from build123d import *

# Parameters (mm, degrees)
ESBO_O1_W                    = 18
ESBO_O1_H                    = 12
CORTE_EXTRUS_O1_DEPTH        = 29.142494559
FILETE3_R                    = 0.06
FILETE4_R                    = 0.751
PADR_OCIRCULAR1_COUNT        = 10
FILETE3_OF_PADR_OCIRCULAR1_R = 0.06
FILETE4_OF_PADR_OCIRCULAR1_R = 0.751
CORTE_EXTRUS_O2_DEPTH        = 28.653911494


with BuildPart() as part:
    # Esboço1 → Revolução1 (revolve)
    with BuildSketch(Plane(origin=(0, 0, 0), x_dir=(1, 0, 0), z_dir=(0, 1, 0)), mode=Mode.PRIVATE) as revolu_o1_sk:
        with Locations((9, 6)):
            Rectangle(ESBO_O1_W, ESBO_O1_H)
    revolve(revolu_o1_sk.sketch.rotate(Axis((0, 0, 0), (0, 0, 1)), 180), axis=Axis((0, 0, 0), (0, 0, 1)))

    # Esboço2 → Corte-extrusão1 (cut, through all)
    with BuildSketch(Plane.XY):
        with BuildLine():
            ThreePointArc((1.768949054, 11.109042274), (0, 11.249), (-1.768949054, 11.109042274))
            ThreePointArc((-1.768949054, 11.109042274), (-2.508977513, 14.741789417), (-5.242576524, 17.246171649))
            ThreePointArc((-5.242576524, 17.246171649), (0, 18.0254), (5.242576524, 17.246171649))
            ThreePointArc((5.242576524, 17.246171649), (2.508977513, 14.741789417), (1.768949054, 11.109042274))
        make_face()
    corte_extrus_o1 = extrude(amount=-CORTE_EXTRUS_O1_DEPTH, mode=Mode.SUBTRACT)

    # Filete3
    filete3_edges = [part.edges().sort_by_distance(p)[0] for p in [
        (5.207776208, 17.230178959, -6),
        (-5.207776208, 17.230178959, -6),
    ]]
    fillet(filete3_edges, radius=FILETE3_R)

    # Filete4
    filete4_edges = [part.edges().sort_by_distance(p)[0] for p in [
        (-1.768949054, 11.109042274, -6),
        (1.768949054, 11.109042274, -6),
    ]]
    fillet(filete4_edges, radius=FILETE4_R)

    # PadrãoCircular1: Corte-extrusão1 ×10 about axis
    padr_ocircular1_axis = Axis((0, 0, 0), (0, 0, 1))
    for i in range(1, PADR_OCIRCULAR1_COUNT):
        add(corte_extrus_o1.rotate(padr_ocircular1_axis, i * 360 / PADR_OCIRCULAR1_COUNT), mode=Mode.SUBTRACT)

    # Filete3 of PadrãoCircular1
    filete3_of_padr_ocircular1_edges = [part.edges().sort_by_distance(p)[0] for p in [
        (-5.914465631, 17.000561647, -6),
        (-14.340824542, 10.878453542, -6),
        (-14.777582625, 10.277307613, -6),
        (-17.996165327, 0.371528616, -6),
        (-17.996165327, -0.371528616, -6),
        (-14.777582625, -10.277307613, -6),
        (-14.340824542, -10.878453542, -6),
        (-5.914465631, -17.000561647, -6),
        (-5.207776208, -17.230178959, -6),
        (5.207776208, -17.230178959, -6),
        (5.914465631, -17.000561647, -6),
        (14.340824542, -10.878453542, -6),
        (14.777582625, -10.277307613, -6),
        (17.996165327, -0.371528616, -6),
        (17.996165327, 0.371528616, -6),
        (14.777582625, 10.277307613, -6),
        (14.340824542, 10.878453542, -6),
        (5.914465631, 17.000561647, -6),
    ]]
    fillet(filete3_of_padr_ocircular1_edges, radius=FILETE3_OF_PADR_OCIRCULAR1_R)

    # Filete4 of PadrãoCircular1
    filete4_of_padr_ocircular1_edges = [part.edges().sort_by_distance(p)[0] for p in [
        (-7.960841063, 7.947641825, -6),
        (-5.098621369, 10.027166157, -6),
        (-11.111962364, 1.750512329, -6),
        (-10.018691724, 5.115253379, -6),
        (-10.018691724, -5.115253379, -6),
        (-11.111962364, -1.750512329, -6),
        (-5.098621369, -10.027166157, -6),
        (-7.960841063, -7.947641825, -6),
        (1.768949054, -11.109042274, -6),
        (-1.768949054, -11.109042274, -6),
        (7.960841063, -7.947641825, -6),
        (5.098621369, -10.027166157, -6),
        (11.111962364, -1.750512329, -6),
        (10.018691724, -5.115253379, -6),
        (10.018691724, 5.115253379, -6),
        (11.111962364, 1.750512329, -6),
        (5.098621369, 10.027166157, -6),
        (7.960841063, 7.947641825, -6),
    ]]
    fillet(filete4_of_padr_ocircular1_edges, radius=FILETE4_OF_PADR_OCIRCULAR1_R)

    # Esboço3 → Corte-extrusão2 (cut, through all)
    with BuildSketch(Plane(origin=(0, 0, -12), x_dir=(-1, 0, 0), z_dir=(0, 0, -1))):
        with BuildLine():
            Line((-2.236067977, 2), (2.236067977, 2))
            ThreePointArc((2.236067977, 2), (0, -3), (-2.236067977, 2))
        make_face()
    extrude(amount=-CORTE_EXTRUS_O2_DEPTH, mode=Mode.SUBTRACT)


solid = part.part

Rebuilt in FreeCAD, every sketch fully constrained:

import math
import FreeCAD as App
import Part
import Sketcher


def edges_at(feature, points):
    """Names of the edges that pass closest to the given points."""
    edges = feature.Shape.Edges
    near = lambda p: min(range(len(edges)), key=lambda i: edges[i].distToShape(Part.Vertex(*p))[0])
    return sorted({f"Edge{near(p) + 1}" for p in points})

doc = App.newDocument("Part")
body = doc.addObject("PartDesign::Body", "Body")

# Sketch on XZ plane
sketch1 = body.newObject("Sketcher::SketchObject", "Sketch")
sketch1.AttachmentSupport = (doc.getObject("XZ_Plane"), [""])
sketch1.MapMode = "FlatFace"
sketch1.addGeometry([
    Part.LineSegment(App.Vector(0, -12, 0), App.Vector(0, 0, 0)),
    Part.LineSegment(App.Vector(0, 0, 0), App.Vector(18, 0, 0)),
    Part.LineSegment(App.Vector(18, 0, 0), App.Vector(18, -12, 0)),
    Part.LineSegment(App.Vector(18, -12, 0), App.Vector(0, -12, 0)),
], False)
sketch1.addConstraint([
    Sketcher.Constraint("Coincident", 0, 2, 1, 1),
    Sketcher.Constraint("Coincident", 1, 2, 2, 1),
    Sketcher.Constraint("Coincident", 2, 2, 3, 1),
    Sketcher.Constraint("Coincident", 3, 2, 0, 1),
    Sketcher.Constraint("Vertical", 0),
    Sketcher.Constraint("Horizontal", 1),
    Sketcher.Constraint("Vertical", 2),
    Sketcher.Constraint("Horizontal", 3),
    Sketcher.Constraint("Coincident", 0, 2, -1, 1),
    Sketcher.Constraint("DistanceX", 1, 1, 1, 2, 18.0),
    Sketcher.Constraint("DistanceY", 0, 1, 0, 2, 12.0),
])
revolution = body.newObject("PartDesign::Revolution", "Revolution")
revolution.Profile = sketch1
revolution.ReferenceAxis = (sketch1, ["V_Axis"])
revolution.Angle = 360

# Sketch on XY plane
sketch2 = body.newObject("Sketcher::SketchObject", "Sketch001")
sketch2.AttachmentSupport = (doc.getObject("XY_Plane"), [""])
sketch2.MapMode = "FlatFace"
sketch2.addGeometry([
    Part.ArcOfCircle(Part.Circle(App.Vector(0, 0, 0), App.Vector(0, 0, 1), 11.2), math.radians(80.95), math.radians(99.05)),
    Part.ArcOfCircle(Part.Circle(App.Vector(7.7, 11.8, 0), App.Vector(0, 0, 1), 6), math.radians(114), math.radians(186)),
    Part.ArcOfCircle(Part.Circle(App.Vector(0, 0, 0), App.Vector(0, 0, 1), 18), math.radians(73), math.radians(107)),
    Part.ArcOfCircle(Part.Circle(App.Vector(-7.7, 11.8, 0), App.Vector(0, 0, 1), 6), math.radians(-6), math.radians(66)),
], False)
sketch2.addConstraint([
    Sketcher.Constraint("Coincident", 0, 1, 1, 2),
    Sketcher.Constraint("Coincident", 1, 1, 2, 1),
    Sketcher.Constraint("Coincident", 2, 2, 3, 2),
    Sketcher.Constraint("Coincident", 3, 1, 0, 2),
    Sketcher.Constraint("Coincident", 0, 3, -1, 1),
    Sketcher.Constraint("Coincident", 2, 3, -1, 1),
    Sketcher.Constraint("Equal", 1, 3),
    Sketcher.Constraint("Symmetric", 1, 3, 3, 3, -2),
    Sketcher.Constraint("Radius", 1, 6.0),
    Sketcher.Constraint("Radius", 0, 11.249),
    Sketcher.Constraint("Radius", 2, 18.0254),
    Sketcher.Constraint("DistanceX", -1, 1, 1, 3, 7.730599),
    Sketcher.Constraint("DistanceY", 0, 1, 1, 3, 0.677299),
])
pocket1 = body.newObject("PartDesign::Pocket", "Pocket")
pocket1.Profile = sketch2
pocket1.Type = "ThroughAll"
doc.recompute()

fillet = body.newObject("PartDesign::Fillet", "Fillet")
fillet.Base = (pocket1, edges_at(pocket1, [(5.208, 17.23, -6), (-5.208, 17.23, -6)]))
fillet.Radius = 0.06
doc.recompute()

fillet2 = body.newObject("PartDesign::Fillet", "Fillet001")
fillet2.Base = (fillet, edges_at(fillet, [(-1.769, 11.109, -6), (1.769, 11.109, -6)]))
fillet2.Radius = 0.751
doc.recompute()

polarpattern = body.newObject("PartDesign::PolarPattern", "PolarPattern")
polarpattern.Originals = [pocket1]
polarpattern.Axis = (doc.getObject("Z_Axis"), [""])
polarpattern.Angle = 360
polarpattern.Occurrences = 10
body.Tip = polarpattern
doc.recompute()

fillet3 = body.newObject("PartDesign::Fillet", "Fillet002")
fillet3.Base = (polarpattern, edges_at(polarpattern, [
    (-5.914, 17.001, -6),
    (-14.341, 10.878, -6),
    (-14.778, 10.277, -6),
    (-17.996, 0.372, -6),
    (-17.996, -0.372, -6),
    (-14.778, -10.277, -6),
    (-14.341, -10.878, -6),
    (-5.914, -17.001, -6),
    (-5.208, -17.23, -6),
    (5.208, -17.23, -6),
    (5.914, -17.001, -6),
    (14.341, -10.878, -6),
    (14.778, -10.277, -6),
    (17.996, -0.372, -6),
    (17.996, 0.372, -6),
    (14.778, 10.277, -6),
    (14.341, 10.878, -6),
    (5.914, 17.001, -6),
]))
fillet3.Radius = 0.06
doc.recompute()

fillet4 = body.newObject("PartDesign::Fillet", "Fillet003")
fillet4.Base = (fillet3, edges_at(fillet3, [
    (-7.961, 7.948, -6),
    (-5.099, 10.027, -6),
    (-11.112, 1.751, -6),
    (-10.019, 5.115, -6),
    (-10.019, -5.115, -6),
    (-11.112, -1.751, -6),
    (-5.099, -10.027, -6),
    (-7.961, -7.948, -6),
    (1.769, -11.109, -6),
    (-1.769, -11.109, -6),
    (7.961, -7.948, -6),
    (5.099, -10.027, -6),
    (11.112, -1.751, -6),
    (10.019, -5.115, -6),
    (10.019, 5.115, -6),
    (11.112, 1.751, -6),
    (5.099, 10.027, -6),
    (7.961, 7.948, -6),
]))
fillet4.Radius = 0.751

# Sketch on XY plane
sketch3 = body.newObject("Sketcher::SketchObject", "Sketch002")
sketch3.AttachmentSupport = (doc.getObject("XY_Plane"), [""])
sketch3.MapMode = "FlatFace"
sketch3.AttachmentOffset = App.Placement(App.Vector(0, 0, -12), App.Rotation())
sketch3.addGeometry([
    Part.LineSegment(App.Vector(-2.2, 2, 0), App.Vector(2.2, 2, 0)),
    Part.ArcOfCircle(Part.Circle(App.Vector(0, 0, 0), App.Vector(0, 0, 1), 3), math.radians(138), math.radians(402)),
], False)
sketch3.addConstraint([
    Sketcher.Constraint("Coincident", 0, 1, 1, 1),
    Sketcher.Constraint("Coincident", 1, 2, 0, 2),
    Sketcher.Constraint("Horizontal", 0),
    Sketcher.Constraint("Coincident", 1, 3, -1, 1),
    Sketcher.Constraint("Radius", 1, 3.0),
    Sketcher.Constraint("DistanceY", -1, 1, 0, 1, 2.0),
])
pocket2 = body.newObject("PartDesign::Pocket", "Pocket001")
pocket2.Profile = sketch3
pocket2.Type = "ThroughAll"
pocket2.Reversed = True

doc.recompute()
